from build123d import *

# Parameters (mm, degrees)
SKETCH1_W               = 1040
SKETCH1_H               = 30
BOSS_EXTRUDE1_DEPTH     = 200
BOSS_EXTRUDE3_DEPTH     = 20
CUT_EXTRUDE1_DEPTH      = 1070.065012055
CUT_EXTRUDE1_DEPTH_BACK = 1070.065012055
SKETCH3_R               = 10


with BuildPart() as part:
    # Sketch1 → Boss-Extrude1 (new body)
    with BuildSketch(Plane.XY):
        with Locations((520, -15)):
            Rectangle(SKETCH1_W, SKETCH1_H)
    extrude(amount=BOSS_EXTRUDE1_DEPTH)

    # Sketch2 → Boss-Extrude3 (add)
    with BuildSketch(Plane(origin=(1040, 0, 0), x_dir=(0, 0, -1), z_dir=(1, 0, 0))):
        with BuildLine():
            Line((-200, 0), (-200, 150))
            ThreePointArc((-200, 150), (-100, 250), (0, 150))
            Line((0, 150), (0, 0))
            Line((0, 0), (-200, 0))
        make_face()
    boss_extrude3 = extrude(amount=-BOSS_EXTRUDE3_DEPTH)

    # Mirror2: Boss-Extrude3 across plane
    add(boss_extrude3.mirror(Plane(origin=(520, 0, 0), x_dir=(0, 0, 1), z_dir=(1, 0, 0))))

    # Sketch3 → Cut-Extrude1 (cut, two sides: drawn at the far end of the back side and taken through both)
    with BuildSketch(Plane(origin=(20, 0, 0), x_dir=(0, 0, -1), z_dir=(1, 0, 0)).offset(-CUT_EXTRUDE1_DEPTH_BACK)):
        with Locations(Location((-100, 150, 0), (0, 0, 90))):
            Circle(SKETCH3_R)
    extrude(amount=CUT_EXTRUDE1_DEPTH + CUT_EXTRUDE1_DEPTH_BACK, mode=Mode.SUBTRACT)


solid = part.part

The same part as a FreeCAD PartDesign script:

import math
import FreeCAD as App
import Part
import Sketcher

V = App.Vector
Q = App.Units.Quantity


def add_polygon(sketch, points):
    """Adds a closed chain of lines whose ends are joined by coincident constraints."""
    first, n = sketch.GeometryCount, len(points)
    for a, b in zip(points, points[1:] + points[:1]):
        sketch.addGeometry(Part.LineSegment(App.Vector(*a, 0), App.Vector(*b, 0)), False)
    for i in range(n):
        sketch.addConstraint(Sketcher.Constraint("Coincident", first + i, 2, first + (i + 1) % n, 1))

doc = App.newDocument("Part")
body = doc.addObject("PartDesign::Body", "Body")

# Sketch on XY plane
sketch1 = body.newObject("Sketcher::SketchObject", "Sketch")
sketch1.AttachmentSupport = (doc.getObject("XY_Plane"), [""])
sketch1.MapMode = "FlatFace"
add_polygon(sketch1, [(0, 0), (0, -30), (1040, -30), (1040, 0)])  # lines 0-3
sketch1.addConstraint([
    Sketcher.Constraint("Vertical", 0),
    Sketcher.Constraint("Horizontal", 1),
    Sketcher.Constraint("Vertical", 2),
    Sketcher.Constraint("Horizontal", 3),
    Sketcher.Constraint("Coincident", 3, 2, -1, 1),
    Sketcher.Constraint("DistanceX", 1, 1, 1, 2, Q("1040 mm")),
    Sketcher.Constraint("DistanceY", 0, 2, 0, 1, Q("30 mm")),
])
pad1 = body.newObject("PartDesign::Pad", "Pad")
pad1.Profile = sketch1
pad1.Length = 200

# Sketch on YZ plane
sketch2 = body.newObject("Sketcher::SketchObject", "Sketch001")
sketch2.AttachmentSupport = (doc.getObject("YZ_Plane"), [""])
sketch2.MapMode = "FlatFace"
sketch2.AttachmentOffset = App.Placement(V(0, 0, 1040), App.Rotation())
sketch2.addGeometry([
    Part.LineSegment(V(150, 200, 0), V(0, 200, 0)),
    Part.LineSegment(V(0, 200, 0), V(0, 0, 0)),
    Part.LineSegment(V(0, 0, 0), V(150, 0, 0)),
    Part.ArcOfCircle(Part.Circle(V(150, 100, 0), V(0, 0, 1), 100), math.radians(-90), math.radians(90)),
], False)
sketch2.addConstraint([
    Sketcher.Constraint("Coincident", 0, 2, 1, 1),
    Sketcher.Constraint("Coincident", 1, 2, 2, 1),
    Sketcher.Constraint("Tangent", 2, 2, 3, 1),
    Sketcher.Constraint("Tangent", 3, 2, 0, 1),
    Sketcher.Constraint("Horizontal", 0),
    Sketcher.Constraint("Vertical", 1),
    Sketcher.Constraint("Horizontal", 2),
    Sketcher.Constraint("Coincident", 1, 2, -1, 1),
    Sketcher.Constraint("Radius", 3, Q("100 mm")),
    Sketcher.Constraint("DistanceX", 0, 2, 0, 1, Q("150 mm")),
])
pad2 = body.newObject("PartDesign::Pad", "Pad001")
pad2.Profile = sketch2
pad2.Length = 20
pad2.Reversed = True
doc.recompute()

datumplane = body.newObject("PartDesign::Plane", "DatumPlane")
datumplane.AttachmentSupport = (doc.getObject("YZ_Plane"), [""])
datumplane.MapMode = "FlatFace"
datumplane.AttachmentOffset = App.Placement(V(0, 0, 520), App.Rotation())
mirrored = body.newObject("PartDesign::Mirrored", "Mirrored")
mirrored.Originals = [pad2]
mirrored.MirrorPlane = (datumplane, [""])
body.Tip = mirrored

# Sketch on YZ plane
sketch3 = body.newObject("Sketcher::SketchObject", "Sketch002")
sketch3.AttachmentSupport = (doc.getObject("YZ_Plane"), [""])
sketch3.MapMode = "FlatFace"
sketch3.AttachmentOffset = App.Placement(V(0, 0, 20), App.Rotation())
sketch3.addGeometry(Part.Circle(V(150, 100, 0), V(0, 0, 1), 10), False)
sketch3.addConstraint([
    Sketcher.Constraint("Diameter", 0, Q("20 mm")),
    Sketcher.Constraint("DistanceX", -1, 1, 0, 3, Q("150 mm")),
    Sketcher.Constraint("DistanceY", -1, 1, 0, 3, Q("100 mm")),
])
pocket1 = body.newObject("PartDesign::Pocket", "Pocket")
pocket1.Profile = sketch3
pocket1.Type = "ThroughAll"
pocket1.Midplane = True

doc.recompute()
